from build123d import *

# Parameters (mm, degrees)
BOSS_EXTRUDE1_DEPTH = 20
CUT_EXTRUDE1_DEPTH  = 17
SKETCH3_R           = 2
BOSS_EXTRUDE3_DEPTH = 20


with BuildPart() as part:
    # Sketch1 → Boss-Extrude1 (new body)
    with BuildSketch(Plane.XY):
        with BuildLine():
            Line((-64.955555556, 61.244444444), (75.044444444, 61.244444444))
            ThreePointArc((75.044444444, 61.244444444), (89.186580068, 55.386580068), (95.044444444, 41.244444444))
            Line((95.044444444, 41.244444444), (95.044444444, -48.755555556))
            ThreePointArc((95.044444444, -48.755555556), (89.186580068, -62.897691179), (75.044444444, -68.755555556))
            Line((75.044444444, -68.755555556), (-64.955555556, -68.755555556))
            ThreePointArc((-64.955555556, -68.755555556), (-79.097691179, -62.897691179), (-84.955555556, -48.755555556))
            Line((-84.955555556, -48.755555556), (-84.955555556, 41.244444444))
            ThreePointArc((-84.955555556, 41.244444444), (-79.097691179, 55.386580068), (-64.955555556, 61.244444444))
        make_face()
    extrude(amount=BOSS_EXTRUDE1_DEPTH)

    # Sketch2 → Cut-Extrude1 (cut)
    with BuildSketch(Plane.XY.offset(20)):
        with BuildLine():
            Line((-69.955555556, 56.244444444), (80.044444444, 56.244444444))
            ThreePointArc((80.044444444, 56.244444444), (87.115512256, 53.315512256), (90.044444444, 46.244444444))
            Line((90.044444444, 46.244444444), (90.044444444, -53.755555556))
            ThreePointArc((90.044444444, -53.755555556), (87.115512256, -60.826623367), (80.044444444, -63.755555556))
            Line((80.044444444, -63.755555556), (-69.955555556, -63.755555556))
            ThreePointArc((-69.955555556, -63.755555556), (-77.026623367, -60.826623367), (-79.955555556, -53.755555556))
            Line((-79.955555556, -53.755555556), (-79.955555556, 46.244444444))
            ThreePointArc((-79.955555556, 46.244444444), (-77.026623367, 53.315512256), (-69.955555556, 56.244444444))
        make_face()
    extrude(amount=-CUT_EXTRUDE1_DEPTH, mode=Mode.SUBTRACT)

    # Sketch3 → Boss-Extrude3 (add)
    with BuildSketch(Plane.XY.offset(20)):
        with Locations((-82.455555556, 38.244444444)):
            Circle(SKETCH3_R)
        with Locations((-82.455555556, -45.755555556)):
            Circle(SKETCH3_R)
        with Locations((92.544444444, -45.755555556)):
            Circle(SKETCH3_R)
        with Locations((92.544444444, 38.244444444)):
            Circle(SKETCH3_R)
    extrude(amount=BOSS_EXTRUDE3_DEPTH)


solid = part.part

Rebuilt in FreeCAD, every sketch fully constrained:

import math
import FreeCAD as App
import Part
import Sketcher

V = App.Vector
Q = App.Units.Quantity

doc = App.newDocument("Part")
body = doc.addObject("PartDesign::Body", "Body")

# Sketch on XY plane
sketch1 = doc.addObject("Sketcher::SketchObject", "Sketch")
body.addObject(sketch1)
sketch1.AttachmentSupport = (doc.XY_Plane, [""])
sketch1.MapMode = "FlatFace"
sketch1.addGeometry([
    Part.LineSegment(V(75, 61, 0), V(-65, 61, 0)),  # 0
    Part.ArcOfCircle(Part.Circle(V(-65, 41, 0), V(0, 0, 1), 20), math.radians(90), math.radians(180)),  # 1
    Part.LineSegment(V(-85, 41, 0), V(-85, -49, 0)),  # 2
    Part.ArcOfCircle(Part.Circle(V(-65, -49, 0), V(0, 0, 1), 20), math.radians(-180), math.radians(-90)),  # 3
    Part.LineSegment(V(-65, -69, 0), V(75, -69, 0)),  # 4
    Part.ArcOfCircle(Part.Circle(V(75, -49, 0), V(0, 0, 1), 20), math.radians(-90), math.radians(0)),  # 5
    Part.LineSegment(V(95, -49, 0), V(95, 41, 0)),  # 6
    Part.ArcOfCircle(Part.Circle(V(75, 41, 0), V(0, 0, 1), 20), math.radians(0), math.radians(90)),  # 7
], False)
sketch1.addConstraint([
    Sketcher.Constraint("Tangent", 0, 2, 1, 1),
    Sketcher.Constraint("Tangent", 1, 2, 2, 1),
    Sketcher.Constraint("Tangent", 2, 2, 3, 1),
    Sketcher.Constraint("Tangent", 3, 2, 4, 1),
    Sketcher.Constraint("Tangent", 4, 2, 5, 1),
    Sketcher.Constraint("Tangent", 5, 2, 6, 1),
    Sketcher.Constraint("Tangent", 6, 2, 7, 1),
    Sketcher.Constraint("Tangent", 7, 2, 0, 1),
    Sketcher.Constraint("Horizontal", 0),
    Sketcher.Constraint("Vertical", 2),
    Sketcher.Constraint("Horizontal", 4),
    Sketcher.Constraint("Vertical", 6),
    Sketcher.Constraint("Equal", 1, 3),
    Sketcher.Constraint("Equal", 3, 5),
    Sketcher.Constraint("Equal", 5, 7),
    Sketcher.Constraint("Radius", 1, Q("20 mm")),
    Sketcher.Constraint("DistanceX", 0, 2, 0, 1, Q("140 mm")),
    Sketcher.Constraint("DistanceY", 2, 2, 2, 1, Q("90 mm")),
    Sketcher.Constraint("DistanceX", 1, 3, -1, 1, Q("64.955556 mm")),
    Sketcher.Constraint("DistanceY", -1, 1, 1, 3, Q("41.244444 mm")),
])
pad1 = doc.addObject("PartDesign::Pad", "Pad")
body.addObject(pad1)
pad1.Profile = sketch1
pad1.Length = 20

# Sketch on XY plane
sketch2 = doc.addObject("Sketcher::SketchObject", "Sketch001")
body.addObject(sketch2)
sketch2.AttachmentSupport = (doc.XY_Plane, [""])
sketch2.MapMode = "FlatFace"
sketch2.AttachmentOffset = App.Placement(V(0, 0, 20), App.Rotation())
sketch2.addGeometry([
    Part.LineSegment(V(80, 56, 0), V(-70, 56, 0)),  # 0
    Part.ArcOfCircle(Part.Circle(V(-70, 46, 0), V(0, 0, 1), 10), math.radians(90), math.radians(180)),  # 1
    Part.LineSegment(V(-80, 46, 0), V(-80, -54, 0)),  # 2
    Part.ArcOfCircle(Part.Circle(V(-70, -54, 0), V(0, 0, 1), 10), math.radians(-180), math.radians(-90)),  # 3
    Part.LineSegment(V(-70, -64, 0), V(80, -64, 0)),  # 4
    Part.ArcOfCircle(Part.Circle(V(80, -54, 0), V(0, 0, 1), 10), math.radians(-90), math.radians(0)),  # 5
    Part.LineSegment(V(90, -54, 0), V(90, 46, 0)),  # 6
    Part.ArcOfCircle(Part.Circle(V(80, 46, 0), V(0, 0, 1), 10), math.radians(0), math.radians(90)),  # 7
], False)
sketch2.addConstraint([
    Sketcher.Constraint("Tangent", 0, 2, 1, 1),
    Sketcher.Constraint("Tangent", 1, 2, 2, 1),
    Sketcher.Constraint("Tangent", 2, 2, 3, 1),
    Sketcher.Constraint("Tangent", 3, 2, 4, 1),
    Sketcher.Constraint("Tangent", 4, 2, 5, 1),
    Sketcher.Constraint("Tangent", 5, 2, 6, 1),
    Sketcher.Constraint("Tangent", 6, 2, 7, 1),
    Sketcher.Constraint("Tangent", 7, 2, 0, 1),
    Sketcher.Constraint("Horizontal", 0),
    Sketcher.Constraint("Vertical", 2),
    Sketcher.Constraint("Horizontal", 4),
    Sketcher.Constraint("Vertical", 6),
    Sketcher.Constraint("Equal", 1, 3),
    Sketcher.Constraint("Equal", 3, 5),
    Sketcher.Constraint("Equal", 5, 7),
    Sketcher.Constraint("Radius", 1, Q("10 mm")),
    Sketcher.Constraint("DistanceX", 0, 2, 0, 1, Q("150 mm")),
    Sketcher.Constraint("DistanceY", 2, 2, 2, 1, Q("100 mm")),
    Sketcher.Constraint("DistanceX", 1, 3, -1, 1, Q("69.955556 mm")),
    Sketcher.Constraint("DistanceY", -1, 1, 1, 3, Q("46.244444 mm")),
])
pocket1 = doc.addObject("PartDesign::Pocket", "Pocket")
body.addObject(pocket1)
pocket1.Profile = sketch2
pocket1.Length = 17

# Sketch on XY plane
sketch3 = doc.addObject("Sketcher::SketchObject", "Sketch002")
body.addObject(sketch3)
sketch3.AttachmentSupport = (doc.XY_Plane, [""])
sketch3.MapMode = "FlatFace"
sketch3.AttachmentOffset = App.Placement(V(0, 0, 20), App.Rotation())
sketch3.addGeometry([
    Part.Circle(V(-82.5, 38.2, 0), V(0, 0, 1), 2),
    Part.Circle(V(-82.5, -45.8, 0), V(0, 0, 1), 2),
    Part.Circle(V(92.5, -45.8, 0), V(0, 0, 1), 2),
    Part.Circle(V(92.5, 38.2, 0), V(0, 0, 1), 2),
], False)
sketch3.addConstraint([
    Sketcher.Constraint("Equal", 0, 1),
    Sketcher.Constraint("Equal", 1, 2),
    Sketcher.Constraint("Equal", 2, 3),
    Sketcher.Constraint("Horizontal", 1, 3, 2, 3),
    Sketcher.Constraint("Horizontal", 0, 3, 3, 3),
    Sketcher.Constraint("Vertical", 0, 3, 1, 3),
    Sketcher.Constraint("Vertical", 2, 3, 3, 3),
    Sketcher.Constraint("Diameter", 0, Q("4 mm")),
    Sketcher.Constraint("DistanceY", 1, 3, 0, 3, Q("84 mm")),
    Sketcher.Constraint("DistanceX", 1, 3, 2, 3, Q("175 mm")),
    Sketcher.Constraint("DistanceX", 0, 3, -1, 1, Q("82.455556 mm")),
    Sketcher.Constraint("DistanceY", -1, 1, 0, 3, Q("38.244444 mm")),
])
pad2 = doc.addObject("PartDesign::Pad", "Pad001")
body.addObject(pad2)
pad2.Profile = sketch3
pad2.Length = 20

doc.recompute()
